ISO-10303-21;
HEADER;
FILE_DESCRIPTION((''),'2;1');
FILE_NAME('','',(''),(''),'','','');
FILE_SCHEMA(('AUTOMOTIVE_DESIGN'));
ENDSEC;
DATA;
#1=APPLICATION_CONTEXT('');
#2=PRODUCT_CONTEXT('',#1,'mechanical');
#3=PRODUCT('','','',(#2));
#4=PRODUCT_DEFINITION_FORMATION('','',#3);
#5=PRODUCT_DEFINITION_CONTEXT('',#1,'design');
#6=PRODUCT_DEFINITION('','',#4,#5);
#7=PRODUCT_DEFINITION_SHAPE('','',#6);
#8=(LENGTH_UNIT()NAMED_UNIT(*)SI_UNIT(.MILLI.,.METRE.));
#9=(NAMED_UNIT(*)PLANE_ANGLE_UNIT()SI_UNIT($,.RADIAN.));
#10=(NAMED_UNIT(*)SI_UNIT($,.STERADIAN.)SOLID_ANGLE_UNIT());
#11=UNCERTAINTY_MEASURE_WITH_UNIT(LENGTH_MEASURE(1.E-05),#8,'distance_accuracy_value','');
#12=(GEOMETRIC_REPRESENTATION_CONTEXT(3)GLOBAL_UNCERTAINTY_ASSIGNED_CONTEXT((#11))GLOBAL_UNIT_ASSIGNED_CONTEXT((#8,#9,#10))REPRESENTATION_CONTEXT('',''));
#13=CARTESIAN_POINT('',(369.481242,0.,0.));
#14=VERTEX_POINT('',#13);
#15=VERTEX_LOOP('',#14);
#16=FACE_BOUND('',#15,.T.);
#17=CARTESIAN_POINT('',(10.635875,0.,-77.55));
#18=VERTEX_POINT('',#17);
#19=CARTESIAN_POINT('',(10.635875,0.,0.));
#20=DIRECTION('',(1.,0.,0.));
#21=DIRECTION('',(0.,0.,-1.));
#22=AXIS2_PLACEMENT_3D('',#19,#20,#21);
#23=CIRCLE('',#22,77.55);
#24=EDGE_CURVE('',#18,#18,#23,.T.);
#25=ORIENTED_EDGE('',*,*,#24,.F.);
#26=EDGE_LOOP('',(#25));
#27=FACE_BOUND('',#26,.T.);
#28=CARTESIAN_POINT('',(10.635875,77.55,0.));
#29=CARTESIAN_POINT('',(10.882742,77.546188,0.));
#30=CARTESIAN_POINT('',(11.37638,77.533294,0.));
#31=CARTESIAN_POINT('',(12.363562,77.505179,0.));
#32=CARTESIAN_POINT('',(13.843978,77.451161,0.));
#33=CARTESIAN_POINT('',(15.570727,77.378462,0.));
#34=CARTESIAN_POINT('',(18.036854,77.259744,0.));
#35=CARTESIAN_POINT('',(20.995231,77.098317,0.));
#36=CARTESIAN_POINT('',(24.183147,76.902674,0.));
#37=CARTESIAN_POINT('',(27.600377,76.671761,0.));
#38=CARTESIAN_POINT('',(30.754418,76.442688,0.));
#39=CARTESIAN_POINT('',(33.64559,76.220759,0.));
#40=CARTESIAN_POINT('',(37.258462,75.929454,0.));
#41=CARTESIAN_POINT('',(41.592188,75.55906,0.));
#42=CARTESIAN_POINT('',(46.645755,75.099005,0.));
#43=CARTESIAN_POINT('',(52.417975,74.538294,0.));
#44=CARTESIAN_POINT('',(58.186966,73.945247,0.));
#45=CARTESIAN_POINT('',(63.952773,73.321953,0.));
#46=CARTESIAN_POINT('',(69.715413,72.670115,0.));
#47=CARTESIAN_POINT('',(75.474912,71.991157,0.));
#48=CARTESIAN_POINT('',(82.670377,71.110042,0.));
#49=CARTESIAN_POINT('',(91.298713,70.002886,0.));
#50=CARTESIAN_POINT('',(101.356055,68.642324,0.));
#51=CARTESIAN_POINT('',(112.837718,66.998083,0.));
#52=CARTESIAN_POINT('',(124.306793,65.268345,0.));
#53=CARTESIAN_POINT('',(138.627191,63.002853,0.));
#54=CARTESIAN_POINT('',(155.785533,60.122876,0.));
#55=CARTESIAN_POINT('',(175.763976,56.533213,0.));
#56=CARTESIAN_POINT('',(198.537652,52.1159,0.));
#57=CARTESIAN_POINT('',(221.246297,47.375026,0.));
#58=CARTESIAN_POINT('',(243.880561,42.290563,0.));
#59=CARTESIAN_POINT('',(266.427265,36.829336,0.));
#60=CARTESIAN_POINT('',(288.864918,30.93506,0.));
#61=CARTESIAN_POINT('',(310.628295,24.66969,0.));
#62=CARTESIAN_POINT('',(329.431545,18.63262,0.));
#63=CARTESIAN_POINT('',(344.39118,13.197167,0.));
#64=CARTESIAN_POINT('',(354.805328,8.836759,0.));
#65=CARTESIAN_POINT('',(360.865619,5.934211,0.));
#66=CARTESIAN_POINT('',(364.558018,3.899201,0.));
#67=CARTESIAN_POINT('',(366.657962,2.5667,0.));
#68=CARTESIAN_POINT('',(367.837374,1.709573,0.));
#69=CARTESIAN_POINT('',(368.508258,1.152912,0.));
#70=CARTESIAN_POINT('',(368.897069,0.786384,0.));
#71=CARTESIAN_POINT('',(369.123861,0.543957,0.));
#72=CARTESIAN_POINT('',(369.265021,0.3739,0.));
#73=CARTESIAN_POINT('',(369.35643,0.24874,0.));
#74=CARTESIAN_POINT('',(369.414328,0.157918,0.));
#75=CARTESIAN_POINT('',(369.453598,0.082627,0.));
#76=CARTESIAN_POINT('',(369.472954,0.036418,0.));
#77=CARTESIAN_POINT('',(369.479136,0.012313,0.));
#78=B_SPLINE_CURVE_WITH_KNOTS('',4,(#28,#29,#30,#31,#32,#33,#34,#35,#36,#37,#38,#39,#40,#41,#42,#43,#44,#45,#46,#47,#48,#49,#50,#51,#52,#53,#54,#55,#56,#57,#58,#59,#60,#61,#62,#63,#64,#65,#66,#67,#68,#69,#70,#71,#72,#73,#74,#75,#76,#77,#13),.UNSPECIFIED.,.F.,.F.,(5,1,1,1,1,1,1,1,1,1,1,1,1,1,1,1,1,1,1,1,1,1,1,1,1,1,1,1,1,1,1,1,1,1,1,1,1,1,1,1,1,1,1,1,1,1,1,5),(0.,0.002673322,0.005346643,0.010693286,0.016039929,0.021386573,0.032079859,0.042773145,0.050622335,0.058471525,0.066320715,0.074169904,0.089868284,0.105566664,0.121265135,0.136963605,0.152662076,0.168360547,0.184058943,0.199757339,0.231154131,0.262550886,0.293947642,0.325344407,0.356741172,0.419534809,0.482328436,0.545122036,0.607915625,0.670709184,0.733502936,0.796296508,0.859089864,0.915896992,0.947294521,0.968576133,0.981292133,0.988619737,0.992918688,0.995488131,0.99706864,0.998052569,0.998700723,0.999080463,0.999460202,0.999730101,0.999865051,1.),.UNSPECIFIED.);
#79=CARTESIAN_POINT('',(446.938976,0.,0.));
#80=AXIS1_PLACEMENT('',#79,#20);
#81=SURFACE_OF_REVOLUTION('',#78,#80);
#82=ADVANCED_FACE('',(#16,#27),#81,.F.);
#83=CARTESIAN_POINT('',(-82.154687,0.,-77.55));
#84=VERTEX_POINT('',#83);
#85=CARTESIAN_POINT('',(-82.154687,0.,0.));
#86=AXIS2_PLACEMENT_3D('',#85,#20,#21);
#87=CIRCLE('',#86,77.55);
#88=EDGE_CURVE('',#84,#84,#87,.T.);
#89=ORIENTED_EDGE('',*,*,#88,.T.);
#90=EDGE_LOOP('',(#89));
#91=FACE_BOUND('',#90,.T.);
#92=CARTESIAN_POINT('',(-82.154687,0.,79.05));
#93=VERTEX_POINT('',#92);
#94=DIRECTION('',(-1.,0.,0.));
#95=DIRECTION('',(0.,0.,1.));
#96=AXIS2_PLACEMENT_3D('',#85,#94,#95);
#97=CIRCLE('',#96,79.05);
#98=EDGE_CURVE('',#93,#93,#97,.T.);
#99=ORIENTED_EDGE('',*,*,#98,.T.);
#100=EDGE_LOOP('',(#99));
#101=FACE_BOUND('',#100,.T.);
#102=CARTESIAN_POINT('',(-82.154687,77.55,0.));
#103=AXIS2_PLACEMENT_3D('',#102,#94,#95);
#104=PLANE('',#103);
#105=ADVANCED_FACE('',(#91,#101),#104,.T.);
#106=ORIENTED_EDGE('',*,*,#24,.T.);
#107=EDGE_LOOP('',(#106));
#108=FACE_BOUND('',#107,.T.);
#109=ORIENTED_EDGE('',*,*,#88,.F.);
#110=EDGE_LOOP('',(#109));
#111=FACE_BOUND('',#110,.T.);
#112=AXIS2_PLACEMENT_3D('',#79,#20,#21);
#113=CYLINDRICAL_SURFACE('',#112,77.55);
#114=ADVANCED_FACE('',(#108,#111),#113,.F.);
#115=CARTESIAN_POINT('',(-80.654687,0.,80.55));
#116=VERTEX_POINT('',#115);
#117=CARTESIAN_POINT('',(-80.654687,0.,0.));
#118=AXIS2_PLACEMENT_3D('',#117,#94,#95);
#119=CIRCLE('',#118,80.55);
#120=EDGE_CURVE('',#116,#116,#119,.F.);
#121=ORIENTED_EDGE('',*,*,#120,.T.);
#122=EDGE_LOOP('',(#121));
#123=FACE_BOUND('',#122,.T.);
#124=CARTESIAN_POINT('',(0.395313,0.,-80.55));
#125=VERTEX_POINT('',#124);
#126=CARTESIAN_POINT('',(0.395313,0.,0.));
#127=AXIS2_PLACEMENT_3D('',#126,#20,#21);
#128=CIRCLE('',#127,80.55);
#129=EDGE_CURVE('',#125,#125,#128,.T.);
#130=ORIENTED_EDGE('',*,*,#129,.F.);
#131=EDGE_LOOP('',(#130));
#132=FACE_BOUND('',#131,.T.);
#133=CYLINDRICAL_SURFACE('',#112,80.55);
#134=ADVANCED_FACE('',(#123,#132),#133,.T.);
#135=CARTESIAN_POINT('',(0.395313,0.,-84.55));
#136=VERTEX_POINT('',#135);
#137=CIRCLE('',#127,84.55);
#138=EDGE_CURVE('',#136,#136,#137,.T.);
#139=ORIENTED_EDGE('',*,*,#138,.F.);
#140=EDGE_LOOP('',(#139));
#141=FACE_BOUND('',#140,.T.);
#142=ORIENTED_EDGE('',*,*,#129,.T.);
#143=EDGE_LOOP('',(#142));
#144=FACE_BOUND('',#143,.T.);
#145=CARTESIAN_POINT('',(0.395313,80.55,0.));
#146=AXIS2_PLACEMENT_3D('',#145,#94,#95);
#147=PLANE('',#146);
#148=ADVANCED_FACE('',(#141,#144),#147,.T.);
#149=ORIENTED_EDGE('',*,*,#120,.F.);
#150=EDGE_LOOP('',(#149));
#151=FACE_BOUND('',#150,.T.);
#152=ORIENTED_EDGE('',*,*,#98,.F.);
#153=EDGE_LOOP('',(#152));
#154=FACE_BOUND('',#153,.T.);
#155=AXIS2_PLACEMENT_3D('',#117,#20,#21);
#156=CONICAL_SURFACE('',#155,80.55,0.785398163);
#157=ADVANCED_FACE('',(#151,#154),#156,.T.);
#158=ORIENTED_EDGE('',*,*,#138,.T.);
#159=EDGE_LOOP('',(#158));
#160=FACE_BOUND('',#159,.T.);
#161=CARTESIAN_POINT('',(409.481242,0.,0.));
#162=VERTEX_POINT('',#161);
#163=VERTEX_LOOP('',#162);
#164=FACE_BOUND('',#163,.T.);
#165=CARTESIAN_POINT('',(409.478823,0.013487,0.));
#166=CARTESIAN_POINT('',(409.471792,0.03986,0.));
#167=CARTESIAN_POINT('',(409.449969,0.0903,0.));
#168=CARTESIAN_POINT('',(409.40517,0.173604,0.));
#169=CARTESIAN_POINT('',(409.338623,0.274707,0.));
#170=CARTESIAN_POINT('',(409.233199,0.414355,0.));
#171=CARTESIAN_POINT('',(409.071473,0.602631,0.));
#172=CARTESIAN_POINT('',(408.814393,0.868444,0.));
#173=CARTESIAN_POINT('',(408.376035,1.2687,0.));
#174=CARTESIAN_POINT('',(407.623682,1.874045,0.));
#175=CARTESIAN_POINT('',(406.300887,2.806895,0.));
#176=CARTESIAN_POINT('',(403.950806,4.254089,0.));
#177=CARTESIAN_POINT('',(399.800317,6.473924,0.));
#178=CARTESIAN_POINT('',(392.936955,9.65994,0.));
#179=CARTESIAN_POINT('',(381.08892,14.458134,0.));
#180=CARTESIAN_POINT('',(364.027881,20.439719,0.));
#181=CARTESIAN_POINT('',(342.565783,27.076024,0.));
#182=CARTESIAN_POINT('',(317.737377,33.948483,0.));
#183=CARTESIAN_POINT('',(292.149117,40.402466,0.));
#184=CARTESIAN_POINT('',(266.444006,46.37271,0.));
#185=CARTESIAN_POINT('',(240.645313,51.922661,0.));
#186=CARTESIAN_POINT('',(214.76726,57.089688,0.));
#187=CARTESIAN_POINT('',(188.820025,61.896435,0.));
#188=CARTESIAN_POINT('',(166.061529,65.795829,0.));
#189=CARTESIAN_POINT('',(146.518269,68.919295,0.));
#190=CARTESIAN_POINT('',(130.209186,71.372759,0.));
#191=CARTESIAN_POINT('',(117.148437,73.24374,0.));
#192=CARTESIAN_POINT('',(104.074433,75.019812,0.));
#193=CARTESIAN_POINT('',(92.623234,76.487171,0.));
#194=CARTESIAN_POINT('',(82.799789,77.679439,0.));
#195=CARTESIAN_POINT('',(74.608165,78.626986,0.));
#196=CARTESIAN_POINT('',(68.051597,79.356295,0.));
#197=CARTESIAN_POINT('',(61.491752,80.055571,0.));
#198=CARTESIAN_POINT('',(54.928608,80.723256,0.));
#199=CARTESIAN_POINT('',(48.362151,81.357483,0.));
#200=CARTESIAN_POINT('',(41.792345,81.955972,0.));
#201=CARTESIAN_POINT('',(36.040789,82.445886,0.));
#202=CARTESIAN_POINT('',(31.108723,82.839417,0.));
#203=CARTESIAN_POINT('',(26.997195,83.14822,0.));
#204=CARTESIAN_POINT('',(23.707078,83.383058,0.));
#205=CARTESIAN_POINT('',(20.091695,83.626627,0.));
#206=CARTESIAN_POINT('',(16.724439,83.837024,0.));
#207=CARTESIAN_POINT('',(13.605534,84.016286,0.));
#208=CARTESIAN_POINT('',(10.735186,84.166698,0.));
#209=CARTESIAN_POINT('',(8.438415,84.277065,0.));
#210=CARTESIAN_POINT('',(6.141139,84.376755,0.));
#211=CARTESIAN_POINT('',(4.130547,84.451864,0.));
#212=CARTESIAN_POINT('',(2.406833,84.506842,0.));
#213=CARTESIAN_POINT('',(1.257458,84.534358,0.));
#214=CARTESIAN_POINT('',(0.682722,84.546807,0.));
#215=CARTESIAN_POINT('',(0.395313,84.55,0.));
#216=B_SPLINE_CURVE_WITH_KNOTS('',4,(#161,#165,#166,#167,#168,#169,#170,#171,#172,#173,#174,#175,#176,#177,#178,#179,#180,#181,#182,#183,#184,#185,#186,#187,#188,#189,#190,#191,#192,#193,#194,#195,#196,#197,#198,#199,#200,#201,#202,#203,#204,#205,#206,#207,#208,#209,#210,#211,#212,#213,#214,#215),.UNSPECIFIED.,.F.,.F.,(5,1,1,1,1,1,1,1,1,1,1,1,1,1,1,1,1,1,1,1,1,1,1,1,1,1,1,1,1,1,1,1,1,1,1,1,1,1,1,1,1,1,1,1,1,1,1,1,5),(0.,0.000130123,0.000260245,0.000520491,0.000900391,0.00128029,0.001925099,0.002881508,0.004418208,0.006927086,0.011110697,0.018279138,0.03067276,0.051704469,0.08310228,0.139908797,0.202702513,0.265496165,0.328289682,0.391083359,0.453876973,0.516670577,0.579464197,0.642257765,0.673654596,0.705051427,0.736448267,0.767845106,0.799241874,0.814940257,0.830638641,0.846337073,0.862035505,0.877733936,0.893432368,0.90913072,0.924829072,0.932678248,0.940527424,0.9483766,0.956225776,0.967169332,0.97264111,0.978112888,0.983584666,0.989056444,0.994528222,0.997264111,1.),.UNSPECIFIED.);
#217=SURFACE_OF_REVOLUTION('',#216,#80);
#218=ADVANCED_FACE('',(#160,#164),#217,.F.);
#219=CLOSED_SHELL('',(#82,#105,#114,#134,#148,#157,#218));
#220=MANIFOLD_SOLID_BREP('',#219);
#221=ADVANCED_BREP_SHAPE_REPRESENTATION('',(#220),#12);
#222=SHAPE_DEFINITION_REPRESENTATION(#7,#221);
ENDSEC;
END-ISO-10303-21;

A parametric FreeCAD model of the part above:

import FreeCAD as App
import Part
import Sketcher
from FreeCAD import Vector
Q = App.Units.Quantity


def edges_at(feature, points):
    """Names of the edges that pass closest to the given points."""
    edges = feature.Shape.Edges
    near = lambda p: min(range(len(edges)), key=lambda i: edges[i].distToShape(Part.Vertex(*p))[0])
    return sorted({f"Edge{near(p) + 1}" for p in points})

doc = App.newDocument("Part")
params = doc.addObject("Spreadsheet::Sheet", "Params")
for row, (alias, value) in enumerate([
    ("sketch1_height", "4 mm"),
    ("sketch1_width", "82.55 mm"),
    ("revolution_angle", "360 deg"),
    ("chamfer_size", "1.5 mm"),
], start=1):
    params.set(f"A{row}", alias)
    params.set(f"B{row}", "=" + value)
    params.setAlias(f"B{row}", alias)

body = doc.addObject("PartDesign::Body", "Body")

# Sketch on XY plane
sketch1 = doc.addObject("Sketcher::SketchObject", "Sketch")
body.addObject(sketch1)
sketch1.AttachmentSupport = (doc.XY_Plane, [""])
sketch1.MapMode = "FlatFace"
sketch1.addGeometry([
    Part.LineSegment(Vector(-82.154687, 77.55, 0), Vector(10.635875, 77.55, 0)),  # 0
    Part.BSplineCurve([Vector(369.481242, 0, 0), Vector(369.479136, 0.012313, 0), Vector(369.472954, 0.036418, 0), Vector(369.453598, 0.082627, 0), Vector(369.414328, 0.157918, 0), Vector(369.35643, 0.24874, 0), Vector(369.265021, 0.3739, 0), Vector(369.123861, 0.543957, 0), Vector(368.897069, 0.786384, 0), Vector(368.508258, 1.152912, 0), Vector(367.837374, 1.709573, 0), Vector(366.657962, 2.5667, 0), Vector(364.558018, 3.899201, 0), Vector(360.865619, 5.934211, 0), Vector(354.805328, 8.836759, 0), Vector(344.39118, 13.197167, 0), Vector(329.431545, 18.63262, 0), Vector(310.628295, 24.66969, 0), Vector(288.864918, 30.93506, 0), Vector(266.427265, 36.829336, 0), Vector(243.880561, 42.290563, 0), Vector(221.246297, 47.375026, 0), Vector(198.537652, 52.1159, 0), Vector(175.763976, 56.533213, 0), Vector(155.785533, 60.122876, 0), Vector(138.627191, 63.002853, 0), Vector(124.306793, 65.268345, 0), Vector(112.837718, 66.998083, 0), Vector(101.356055, 68.642324, 0), Vector(91.298713, 70.002886, 0), Vector(82.670377, 71.110042, 0), Vector(75.474912, 71.991157, 0), Vector(69.715413, 72.670115, 0), Vector(63.952773, 73.321953, 0), Vector(58.186966, 73.945247, 0), Vector(52.417975, 74.538294, 0), Vector(46.645755, 75.099005, 0), Vector(41.592188, 75.55906, 0), Vector(37.258462, 75.929454, 0), Vector(33.64559, 76.220759, 0), Vector(30.754418, 76.442688, 0), Vector(27.600377, 76.671761, 0), Vector(24.183147, 76.902674, 0), Vector(20.995231, 77.098317, 0), Vector(18.036854, 77.259744, 0), Vector(15.570727, 77.378462, 0), Vector(13.843978, 77.451161, 0), Vector(12.363562, 77.505179, 0), Vector(11.37638, 77.533294, 0), Vector(10.882742, 77.546188, 0), Vector(10.635875, 77.55, 0)], [5, 1, 1, 1, 1, 1, 1, 1, 1, 1, 1, 1, 1, 1, 1, 1, 1, 1, 1, 1, 1, 1, 1, 1, 1, 1, 1, 1, 1, 1, 1, 1, 1, 1, 1, 1, 1, 1, 1, 1, 1, 1, 1, 1, 1, 1, 1, 5], [0, 0.000134949, 0.000269899, 0.000539798, 0.000919537, 0.001299277, 0.001947431, 0.00293136, 0.004511869, 0.007081312, 0.011380263, 0.018707867, 0.031423867, 0.052705479, 0.084103008, 0.140910136, 0.203703492, 0.266497064, 0.329290816, 0.392084375, 0.454877964, 0.517671564, 0.580465191, 0.643258828, 0.674655593, 0.706052358, 0.737449114, 0.768845869, 0.800242661, 0.815941057, 0.831639453, 0.847337924, 0.863036395, 0.878734865, 0.894433336, 0.910131716, 0.925830096, 0.933679285, 0.941528475, 0.949377665, 0.957226855, 0.967920141, 0.978613427, 0.983960071, 0.989306714, 0.994653357, 0.997326678, 1], False, 4, [1, 1, 1, 1, 1, 1, 1, 1, 1, 1, 1, 1, 1, 1, 1, 1, 1, 1, 1, 1, 1, 1, 1, 1, 1, 1, 1, 1, 1, 1, 1, 1, 1, 1, 1, 1, 1, 1, 1, 1, 1, 1, 1, 1, 1, 1, 1, 1, 1, 1, 1], False),  # 1
    Part.LineSegment(Vector(369.481242, 0, 0), Vector(409.481242, 0, 0)),  # 2
    Part.BSplineCurve([Vector(409.481242, 0, 0), Vector(409.478823, 0.013487, 0), Vector(409.471792, 0.03986, 0), Vector(409.449969, 0.0903, 0), Vector(409.40517, 0.173604, 0), Vector(409.338623, 0.274707, 0), Vector(409.233199, 0.414355, 0), Vector(409.071473, 0.602631, 0), Vector(408.814393, 0.868444, 0), Vector(408.376035, 1.2687, 0), Vector(407.623682, 1.874045, 0), Vector(406.300887, 2.806895, 0), Vector(403.950806, 4.254089, 0), Vector(399.800317, 6.473924, 0), Vector(392.936955, 9.65994, 0), Vector(381.08892, 14.458134, 0), Vector(364.027881, 20.439719, 0), Vector(342.565783, 27.076024, 0), Vector(317.737377, 33.948483, 0), Vector(292.149117, 40.402466, 0), Vector(266.444006, 46.37271, 0), Vector(240.645313, 51.922661, 0), Vector(214.76726, 57.089688, 0), Vector(188.820025, 61.896435, 0), Vector(166.061529, 65.795829, 0), Vector(146.518269, 68.919295, 0), Vector(130.209186, 71.372759, 0), Vector(117.148437, 73.24374, 0), Vector(104.074433, 75.019812, 0), Vector(92.623234, 76.487171, 0), Vector(82.799789, 77.679439, 0), Vector(74.608165, 78.626986, 0), Vector(68.051597, 79.356295, 0), Vector(61.491752, 80.055571, 0), Vector(54.928608, 80.723256, 0), Vector(48.362151, 81.357483, 0), Vector(41.792345, 81.955972, 0), Vector(36.040789, 82.445886, 0), Vector(31.108723, 82.839417, 0), Vector(26.997195, 83.14822, 0), Vector(23.707078, 83.383058, 0), Vector(20.091695, 83.626627, 0), Vector(16.724439, 83.837024, 0), Vector(13.605534, 84.016286, 0), Vector(10.735186, 84.166698, 0), Vector(8.438415, 84.277065, 0), Vector(6.141139, 84.376755, 0), Vector(4.130547, 84.451864, 0), Vector(2.406833, 84.506842, 0), Vector(1.257458, 84.534358, 0), Vector(0.682722, 84.546807, 0), Vector(0.395313, 84.55, 0)], [5, 1, 1, 1, 1, 1, 1, 1, 1, 1, 1, 1, 1, 1, 1, 1, 1, 1, 1, 1, 1, 1, 1, 1, 1, 1, 1, 1, 1, 1, 1, 1, 1, 1, 1, 1, 1, 1, 1, 1, 1, 1, 1, 1, 1, 1, 1, 1, 5], [0, 0.000130123, 0.000260245, 0.000520491, 0.000900391, 0.00128029, 0.001925099, 0.002881508, 0.004418208, 0.006927086, 0.011110697, 0.018279138, 0.03067276, 0.051704469, 0.08310228, 0.139908797, 0.202702513, 0.265496165, 0.328289682, 0.391083359, 0.453876973, 0.516670577, 0.579464197, 0.642257765, 0.673654596, 0.705051427, 0.736448267, 0.767845106, 0.799241874, 0.814940257, 0.830638641, 0.846337073, 0.862035505, 0.877733936, 0.893432368, 0.90913072, 0.924829072, 0.932678248, 0.940527424, 0.9483766, 0.956225776, 0.967169332, 0.97264111, 0.978112888, 0.983584666, 0.989056444, 0.994528222, 0.997264111, 1], False, 4, [1, 1, 1, 1, 1, 1, 1, 1, 1, 1, 1, 1, 1, 1, 1, 1, 1, 1, 1, 1, 1, 1, 1, 1, 1, 1, 1, 1, 1, 1, 1, 1, 1, 1, 1, 1, 1, 1, 1, 1, 1, 1, 1, 1, 1, 1, 1, 1, 1, 1, 1, 1], False),  # 3
    Part.LineSegment(Vector(0.395313, 84.55, 0), Vector(0.395313, 80.55, 0)),  # 4
    Part.LineSegment(Vector(0.395313, 80.55, 0), Vector(-82.154687, 80.55, 0)),  # 5
    Part.LineSegment(Vector(-82.154687, 80.55, 0), Vector(-82.154687, 77.55, 0)),  # 6
], False)
sketch1.addConstraint([
    Sketcher.Constraint("Block", 1),
    Sketcher.Constraint("Block", 3),
    Sketcher.Constraint("Coincident", 0, 2, 1, 2),
    Sketcher.Constraint("Coincident", 1, 1, 2, 1),
    Sketcher.Constraint("Coincident", 2, 2, 3, 1),
    Sketcher.Constraint("Coincident", 3, 2, 4, 1),
    Sketcher.Constraint("Coincident", 4, 2, 5, 1),
    Sketcher.Constraint("Coincident", 5, 2, 6, 1),
    Sketcher.Constraint("Coincident", 6, 2, 0, 1),
    Sketcher.Constraint("Horizontal", 0),
    Sketcher.Constraint("Vertical", 4),
    Sketcher.Constraint("Horizontal", 5),
    Sketcher.Constraint("Vertical", 6),
    Sketcher.Constraint("DistanceY", 4, 2, 4, 1, Q("4 mm")),
    Sketcher.Constraint("DistanceX", 5, 2, 5, 1, Q("82.55 mm")),
])
sketch1.setExpression("Constraints[13]", "Params.sketch1_height")
sketch1.setExpression("Constraints[14]", "Params.sketch1_width")
revolution = doc.addObject("PartDesign::Revolution", "Revolution")
body.addObject(revolution)
revolution.Profile = sketch1
revolution.ReferenceAxis = (sketch1, ["H_Axis"])
revolution.setExpression("Angle", "Params.revolution_angle")
doc.recompute()

chamfer = doc.addObject("PartDesign::Chamfer", "Chamfer")
body.addObject(chamfer)
chamfer.Base = (revolution, edges_at(revolution, [(-82.155, -80.55, 0)]))
chamfer.setExpression("Size", "Params.chamfer_size")

doc.recompute()
